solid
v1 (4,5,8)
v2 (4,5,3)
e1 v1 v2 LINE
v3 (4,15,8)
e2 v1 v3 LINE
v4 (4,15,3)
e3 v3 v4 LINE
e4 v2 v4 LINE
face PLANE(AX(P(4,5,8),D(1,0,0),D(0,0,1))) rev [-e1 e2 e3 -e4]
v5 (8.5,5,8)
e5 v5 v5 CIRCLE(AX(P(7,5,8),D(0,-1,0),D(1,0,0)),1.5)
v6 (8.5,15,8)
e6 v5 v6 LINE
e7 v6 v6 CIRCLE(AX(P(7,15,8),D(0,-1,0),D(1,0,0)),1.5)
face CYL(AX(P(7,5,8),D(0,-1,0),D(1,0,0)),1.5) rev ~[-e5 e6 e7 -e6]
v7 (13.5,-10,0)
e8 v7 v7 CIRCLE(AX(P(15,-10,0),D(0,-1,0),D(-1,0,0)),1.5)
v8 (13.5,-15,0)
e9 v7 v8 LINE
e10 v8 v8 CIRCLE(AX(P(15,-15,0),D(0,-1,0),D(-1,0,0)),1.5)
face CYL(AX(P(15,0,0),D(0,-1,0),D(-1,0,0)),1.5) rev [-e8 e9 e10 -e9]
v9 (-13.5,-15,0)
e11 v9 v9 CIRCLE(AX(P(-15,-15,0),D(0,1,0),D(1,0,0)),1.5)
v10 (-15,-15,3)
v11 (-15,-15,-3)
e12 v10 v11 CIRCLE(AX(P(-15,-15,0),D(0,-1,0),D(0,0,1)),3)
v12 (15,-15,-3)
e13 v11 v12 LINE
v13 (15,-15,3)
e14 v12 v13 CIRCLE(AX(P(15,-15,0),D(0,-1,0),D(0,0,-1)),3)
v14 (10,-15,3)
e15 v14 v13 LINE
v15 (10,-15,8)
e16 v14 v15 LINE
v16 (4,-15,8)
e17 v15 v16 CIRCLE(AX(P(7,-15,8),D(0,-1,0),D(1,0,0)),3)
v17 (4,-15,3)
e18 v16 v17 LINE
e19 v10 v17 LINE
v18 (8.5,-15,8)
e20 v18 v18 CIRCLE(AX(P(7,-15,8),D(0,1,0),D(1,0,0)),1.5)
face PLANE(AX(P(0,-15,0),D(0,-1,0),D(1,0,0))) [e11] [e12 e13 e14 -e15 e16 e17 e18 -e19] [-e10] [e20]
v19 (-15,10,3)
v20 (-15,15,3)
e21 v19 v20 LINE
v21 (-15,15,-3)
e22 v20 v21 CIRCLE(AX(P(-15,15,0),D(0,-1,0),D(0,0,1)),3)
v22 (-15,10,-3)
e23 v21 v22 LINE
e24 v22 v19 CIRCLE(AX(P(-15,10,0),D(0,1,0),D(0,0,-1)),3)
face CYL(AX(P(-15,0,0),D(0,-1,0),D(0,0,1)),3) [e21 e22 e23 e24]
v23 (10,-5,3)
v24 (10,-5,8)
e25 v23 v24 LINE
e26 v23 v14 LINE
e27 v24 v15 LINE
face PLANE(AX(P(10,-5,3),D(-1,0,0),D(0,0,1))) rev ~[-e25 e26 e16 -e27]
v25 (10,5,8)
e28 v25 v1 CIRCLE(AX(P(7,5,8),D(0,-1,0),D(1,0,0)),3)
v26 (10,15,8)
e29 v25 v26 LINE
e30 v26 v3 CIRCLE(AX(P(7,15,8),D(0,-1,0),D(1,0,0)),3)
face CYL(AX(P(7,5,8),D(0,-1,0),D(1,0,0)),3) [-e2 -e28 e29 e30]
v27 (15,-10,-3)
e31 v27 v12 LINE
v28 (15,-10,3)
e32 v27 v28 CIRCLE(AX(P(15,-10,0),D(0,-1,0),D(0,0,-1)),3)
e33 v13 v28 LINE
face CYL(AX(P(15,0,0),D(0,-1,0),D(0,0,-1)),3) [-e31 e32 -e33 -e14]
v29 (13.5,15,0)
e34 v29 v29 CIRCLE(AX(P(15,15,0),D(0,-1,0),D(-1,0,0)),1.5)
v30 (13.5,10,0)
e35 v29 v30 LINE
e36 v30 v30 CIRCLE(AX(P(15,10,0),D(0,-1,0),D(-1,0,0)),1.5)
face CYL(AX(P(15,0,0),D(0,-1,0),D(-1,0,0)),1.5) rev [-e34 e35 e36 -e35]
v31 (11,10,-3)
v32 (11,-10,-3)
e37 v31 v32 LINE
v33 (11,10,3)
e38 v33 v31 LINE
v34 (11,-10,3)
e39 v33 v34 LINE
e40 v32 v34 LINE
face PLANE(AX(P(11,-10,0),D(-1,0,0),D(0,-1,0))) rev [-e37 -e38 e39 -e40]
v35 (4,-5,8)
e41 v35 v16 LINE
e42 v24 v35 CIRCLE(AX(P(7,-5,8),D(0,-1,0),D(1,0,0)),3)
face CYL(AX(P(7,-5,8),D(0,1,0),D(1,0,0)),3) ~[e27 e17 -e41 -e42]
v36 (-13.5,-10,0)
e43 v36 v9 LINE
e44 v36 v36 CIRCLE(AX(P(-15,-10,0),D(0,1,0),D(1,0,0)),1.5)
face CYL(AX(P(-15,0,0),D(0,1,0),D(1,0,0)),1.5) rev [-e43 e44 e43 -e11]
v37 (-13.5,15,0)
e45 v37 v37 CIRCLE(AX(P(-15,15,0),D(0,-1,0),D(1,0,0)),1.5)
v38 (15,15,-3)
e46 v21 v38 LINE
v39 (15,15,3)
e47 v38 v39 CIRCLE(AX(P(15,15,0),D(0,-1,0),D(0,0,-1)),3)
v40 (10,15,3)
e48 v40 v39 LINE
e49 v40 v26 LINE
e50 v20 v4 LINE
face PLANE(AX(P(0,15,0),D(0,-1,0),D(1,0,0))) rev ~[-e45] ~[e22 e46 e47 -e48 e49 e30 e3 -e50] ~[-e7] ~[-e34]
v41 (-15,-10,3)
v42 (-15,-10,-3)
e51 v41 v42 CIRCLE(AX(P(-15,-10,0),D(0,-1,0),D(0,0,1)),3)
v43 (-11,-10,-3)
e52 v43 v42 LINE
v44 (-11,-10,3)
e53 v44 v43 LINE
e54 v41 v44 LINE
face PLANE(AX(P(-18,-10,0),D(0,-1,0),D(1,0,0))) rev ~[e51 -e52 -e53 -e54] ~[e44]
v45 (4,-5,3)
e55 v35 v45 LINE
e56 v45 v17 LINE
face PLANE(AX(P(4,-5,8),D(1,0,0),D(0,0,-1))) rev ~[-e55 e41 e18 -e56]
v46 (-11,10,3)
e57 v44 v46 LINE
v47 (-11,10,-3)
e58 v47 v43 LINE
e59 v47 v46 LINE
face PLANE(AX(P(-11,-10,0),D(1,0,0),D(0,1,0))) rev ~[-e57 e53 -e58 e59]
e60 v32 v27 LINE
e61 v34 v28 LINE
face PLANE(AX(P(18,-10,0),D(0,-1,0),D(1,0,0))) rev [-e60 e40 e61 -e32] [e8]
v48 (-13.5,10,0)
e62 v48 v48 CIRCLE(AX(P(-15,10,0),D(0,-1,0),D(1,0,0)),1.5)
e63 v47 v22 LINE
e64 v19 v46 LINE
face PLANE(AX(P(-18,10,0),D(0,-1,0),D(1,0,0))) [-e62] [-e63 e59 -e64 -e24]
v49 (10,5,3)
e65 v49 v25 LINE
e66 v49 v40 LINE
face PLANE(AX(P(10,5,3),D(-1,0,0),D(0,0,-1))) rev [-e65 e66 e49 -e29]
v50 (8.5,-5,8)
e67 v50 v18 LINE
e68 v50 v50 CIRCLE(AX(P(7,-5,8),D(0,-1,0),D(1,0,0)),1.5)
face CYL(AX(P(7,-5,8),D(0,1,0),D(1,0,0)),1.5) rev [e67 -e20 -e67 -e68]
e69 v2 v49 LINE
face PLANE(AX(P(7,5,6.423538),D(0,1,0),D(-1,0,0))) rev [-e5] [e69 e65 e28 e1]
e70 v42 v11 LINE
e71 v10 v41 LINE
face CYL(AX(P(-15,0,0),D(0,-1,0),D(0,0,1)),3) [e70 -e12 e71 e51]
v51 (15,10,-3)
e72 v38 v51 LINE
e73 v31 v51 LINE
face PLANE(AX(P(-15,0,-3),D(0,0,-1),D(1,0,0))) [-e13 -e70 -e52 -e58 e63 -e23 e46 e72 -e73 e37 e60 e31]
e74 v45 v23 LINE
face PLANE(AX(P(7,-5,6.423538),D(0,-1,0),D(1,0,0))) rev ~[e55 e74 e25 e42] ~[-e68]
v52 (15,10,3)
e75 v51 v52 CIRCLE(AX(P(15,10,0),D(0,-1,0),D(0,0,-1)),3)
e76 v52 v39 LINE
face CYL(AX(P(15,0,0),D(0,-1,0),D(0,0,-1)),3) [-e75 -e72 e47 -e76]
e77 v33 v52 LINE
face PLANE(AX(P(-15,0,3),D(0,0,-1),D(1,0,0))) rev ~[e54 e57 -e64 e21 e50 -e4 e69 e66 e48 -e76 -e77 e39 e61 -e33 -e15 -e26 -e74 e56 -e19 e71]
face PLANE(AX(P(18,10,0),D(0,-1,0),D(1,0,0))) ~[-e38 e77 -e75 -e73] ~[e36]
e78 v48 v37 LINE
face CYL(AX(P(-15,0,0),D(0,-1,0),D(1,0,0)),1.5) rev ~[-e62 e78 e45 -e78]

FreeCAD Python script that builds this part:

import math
import FreeCAD as App
import Part
import Sketcher
Q = App.Units.Quantity


def add_polygon(sketch, points):
    """Adds a closed chain of lines whose ends are joined by coincident constraints."""
    first, n = sketch.GeometryCount, len(points)
    for a, b in zip(points, points[1:] + points[:1]):
        sketch.addGeometry(Part.LineSegment(App.Vector(*a, 0), App.Vector(*b, 0)), False)
    for i in range(n):
        sketch.addConstraint(Sketcher.Constraint("Coincident", first + i, 2, first + (i + 1) % n, 1))

doc = App.newDocument("Part")
body = doc.addObject("PartDesign::Body", "Body")

sketch1 = body.newObject("Sketcher::SketchObject", "Sketch")
sketch1.AttachmentSupport = (doc.getObject("XZ_Plane"), [""])
sketch1.MapMode = "FlatFace"
sketch1.addGeometry([
    Part.ArcOfCircle(Part.Circle(App.Vector(-15, 0, 0), App.Vector(0, 0, 1), 3), math.radians(90), math.radians(270)),
    Part.LineSegment(App.Vector(-15, -3, 0), App.Vector(15, -3, 0)),
    Part.ArcOfCircle(Part.Circle(App.Vector(15, 0, 0), App.Vector(0, 0, 1), 3), math.radians(-90), math.radians(90)),
    Part.LineSegment(App.Vector(15, 3, 0), App.Vector(-15, 3, 0)),
], False)
sketch1.addConstraint([
    Sketcher.Constraint("Tangent", 0, 2, 1, 1),
    Sketcher.Constraint("Tangent", 1, 2, 2, 1),
    Sketcher.Constraint("Tangent", 2, 2, 3, 1),
    Sketcher.Constraint("Tangent", 3, 2, 0, 1),
    Sketcher.Constraint("Horizontal", 1),
    Sketcher.Constraint("Horizontal", 3),
    Sketcher.Constraint("Symmetric", 0, 3, 2, 3, -1, 1),
    Sketcher.Constraint("Radius", 0, Q("3 mm")),
    Sketcher.Constraint("DistanceX", 1, 1, 1, 2, Q("30 mm")),
])
pad1 = body.newObject("PartDesign::Pad", "Pad")
pad1.Profile = sketch1
pad1.Length = 30
pad1.Midplane = True

sketch2 = body.newObject("Sketcher::SketchObject", "Sketch001")
sketch2.AttachmentSupport = (doc.getObject("XY_Plane"), [""])
sketch2.MapMode = "FlatFace"
add_polygon(sketch2, [(-18, 10), (-18, -10), (-11, -10), (-11, 10)])
sketch2.addConstraint([
    Sketcher.Constraint("Vertical", 0),
    Sketcher.Constraint("Horizontal", 1),
    Sketcher.Constraint("Vertical", 2),
    Sketcher.Constraint("Horizontal", 3),
    Sketcher.Constraint("DistanceX", 1, 1, 1, 2, Q("7 mm")),
    Sketcher.Constraint("DistanceY", 0, 2, 0, 1, Q("20 mm")),
    Sketcher.Constraint("DistanceX", 0, 2, -1, 1, Q("18 mm")),
    Sketcher.Constraint("DistanceY", 0, 2, -1, 1, Q("10 mm")),
])
pocket1 = body.newObject("PartDesign::Pocket", "Pocket")
pocket1.Profile = sketch2
pocket1.Type = "ThroughAll"
pocket1.Midplane = True
doc.recompute()

mirrored = body.newObject("PartDesign::Mirrored", "Mirrored")
mirrored.Originals = [pocket1]
mirrored.MirrorPlane = (doc.getObject("YZ_Plane"), [""])
body.Tip = mirrored

sketch3 = body.newObject("Sketcher::SketchObject", "Sketch002")
sketch3.AttachmentSupport = (doc.getObject("XZ_Plane"), [""])
sketch3.MapMode = "FlatFace"
sketch3.addGeometry(Part.Circle(App.Vector(-15, 0, 0), App.Vector(0, 0, 1), 1.5), False)
sketch3.addConstraint([
    Sketcher.Constraint("PointOnObject", 0, 3, -1),
    Sketcher.Constraint("Diameter", 0, Q("3 mm")),
    Sketcher.Constraint("DistanceX", 0, 3, -1, 1, Q("15 mm")),
])
pocket2 = body.newObject("PartDesign::Pocket", "Pocket001")
pocket2.Profile = sketch3
pocket2.Type = "ThroughAll"
pocket2.Midplane = True
doc.recompute()

mirrored2 = body.newObject("PartDesign::Mirrored", "Mirrored001")
mirrored2.Originals = [pocket2]
mirrored2.MirrorPlane = (doc.getObject("YZ_Plane"), [""])
body.Tip = mirrored2

sketch4 = body.newObject("Sketcher::SketchObject", "Sketch003")
sketch4.AttachmentSupport = (doc.getObject("XZ_Plane"), [""])
sketch4.MapMode = "FlatFace"
sketch4.AttachmentOffset = App.Placement(App.Vector(0, 0, 5), App.Rotation())
sketch4.addGeometry([
    Part.LineSegment(App.Vector(4, 8, 0), App.Vector(4, 3, 0)),
    Part.LineSegment(App.Vector(4, 3, 0), App.Vector(10, 3, 0)),
    Part.LineSegment(App.Vector(10, 3, 0), App.Vector(10, 8, 0)),
    Part.ArcOfCircle(Part.Circle(App.Vector(7, 8, 0), App.Vector(0, 0, 1), 3), math.radians(0), math.radians(180)),
], False)
sketch4.addConstraint([
    Sketcher.Constraint("Coincident", 0, 2, 1, 1),
    Sketcher.Constraint("Coincident", 1, 2, 2, 1),
    Sketcher.Constraint("Tangent", 2, 2, 3, 1),
    Sketcher.Constraint("Tangent", 3, 2, 0, 1),
    Sketcher.Constraint("Vertical", 0),
    Sketcher.Constraint("Horizontal", 1),
    Sketcher.Constraint("Vertical", 2),
    Sketcher.Constraint("Radius", 3, Q("3 mm")),
    Sketcher.Constraint("DistanceY", 0, 2, 0, 1, Q("5 mm")),
    Sketcher.Constraint("DistanceX", -1, 1, 3, 3, Q("7 mm")),
    Sketcher.Constraint("DistanceY", -1, 1, 3, 3, Q("8 mm")),
])
pad2 = body.newObject("PartDesign::Pad", "Pad001")
pad2.Profile = sketch4
pad2.Length = 10

sketch5 = body.newObject("Sketcher::SketchObject", "Sketch004")
sketch5.AttachmentSupport = (doc.getObject("XZ_Plane"), [""])
sketch5.MapMode = "FlatFace"
sketch5.AttachmentOffset = App.Placement(App.Vector(0, 0, 5), App.Rotation())
sketch5.addGeometry(Part.Circle(App.Vector(7, 8, 0), App.Vector(0, 0, 1), 1.5), False)
sketch5.addConstraint([
    Sketcher.Constraint("Diameter", 0, Q("3 mm")),
    Sketcher.Constraint("DistanceX", -1, 1, 0, 3, Q("7 mm")),
    Sketcher.Constraint("DistanceY", -1, 1, 0, 3, Q("8 mm")),
])
pocket3 = body.newObject("PartDesign::Pocket", "Pocket002")
pocket3.Profile = sketch5
pocket3.Type = "ThroughAll"
pocket3.Reversed = True
doc.recompute()

mirrored3 = body.newObject("PartDesign::Mirrored", "Mirrored002")
mirrored3.Originals = [pad2, pocket3]
mirrored3.MirrorPlane = (doc.getObject("XZ_Plane"), [""])
body.Tip = mirrored3

doc.recompute()
